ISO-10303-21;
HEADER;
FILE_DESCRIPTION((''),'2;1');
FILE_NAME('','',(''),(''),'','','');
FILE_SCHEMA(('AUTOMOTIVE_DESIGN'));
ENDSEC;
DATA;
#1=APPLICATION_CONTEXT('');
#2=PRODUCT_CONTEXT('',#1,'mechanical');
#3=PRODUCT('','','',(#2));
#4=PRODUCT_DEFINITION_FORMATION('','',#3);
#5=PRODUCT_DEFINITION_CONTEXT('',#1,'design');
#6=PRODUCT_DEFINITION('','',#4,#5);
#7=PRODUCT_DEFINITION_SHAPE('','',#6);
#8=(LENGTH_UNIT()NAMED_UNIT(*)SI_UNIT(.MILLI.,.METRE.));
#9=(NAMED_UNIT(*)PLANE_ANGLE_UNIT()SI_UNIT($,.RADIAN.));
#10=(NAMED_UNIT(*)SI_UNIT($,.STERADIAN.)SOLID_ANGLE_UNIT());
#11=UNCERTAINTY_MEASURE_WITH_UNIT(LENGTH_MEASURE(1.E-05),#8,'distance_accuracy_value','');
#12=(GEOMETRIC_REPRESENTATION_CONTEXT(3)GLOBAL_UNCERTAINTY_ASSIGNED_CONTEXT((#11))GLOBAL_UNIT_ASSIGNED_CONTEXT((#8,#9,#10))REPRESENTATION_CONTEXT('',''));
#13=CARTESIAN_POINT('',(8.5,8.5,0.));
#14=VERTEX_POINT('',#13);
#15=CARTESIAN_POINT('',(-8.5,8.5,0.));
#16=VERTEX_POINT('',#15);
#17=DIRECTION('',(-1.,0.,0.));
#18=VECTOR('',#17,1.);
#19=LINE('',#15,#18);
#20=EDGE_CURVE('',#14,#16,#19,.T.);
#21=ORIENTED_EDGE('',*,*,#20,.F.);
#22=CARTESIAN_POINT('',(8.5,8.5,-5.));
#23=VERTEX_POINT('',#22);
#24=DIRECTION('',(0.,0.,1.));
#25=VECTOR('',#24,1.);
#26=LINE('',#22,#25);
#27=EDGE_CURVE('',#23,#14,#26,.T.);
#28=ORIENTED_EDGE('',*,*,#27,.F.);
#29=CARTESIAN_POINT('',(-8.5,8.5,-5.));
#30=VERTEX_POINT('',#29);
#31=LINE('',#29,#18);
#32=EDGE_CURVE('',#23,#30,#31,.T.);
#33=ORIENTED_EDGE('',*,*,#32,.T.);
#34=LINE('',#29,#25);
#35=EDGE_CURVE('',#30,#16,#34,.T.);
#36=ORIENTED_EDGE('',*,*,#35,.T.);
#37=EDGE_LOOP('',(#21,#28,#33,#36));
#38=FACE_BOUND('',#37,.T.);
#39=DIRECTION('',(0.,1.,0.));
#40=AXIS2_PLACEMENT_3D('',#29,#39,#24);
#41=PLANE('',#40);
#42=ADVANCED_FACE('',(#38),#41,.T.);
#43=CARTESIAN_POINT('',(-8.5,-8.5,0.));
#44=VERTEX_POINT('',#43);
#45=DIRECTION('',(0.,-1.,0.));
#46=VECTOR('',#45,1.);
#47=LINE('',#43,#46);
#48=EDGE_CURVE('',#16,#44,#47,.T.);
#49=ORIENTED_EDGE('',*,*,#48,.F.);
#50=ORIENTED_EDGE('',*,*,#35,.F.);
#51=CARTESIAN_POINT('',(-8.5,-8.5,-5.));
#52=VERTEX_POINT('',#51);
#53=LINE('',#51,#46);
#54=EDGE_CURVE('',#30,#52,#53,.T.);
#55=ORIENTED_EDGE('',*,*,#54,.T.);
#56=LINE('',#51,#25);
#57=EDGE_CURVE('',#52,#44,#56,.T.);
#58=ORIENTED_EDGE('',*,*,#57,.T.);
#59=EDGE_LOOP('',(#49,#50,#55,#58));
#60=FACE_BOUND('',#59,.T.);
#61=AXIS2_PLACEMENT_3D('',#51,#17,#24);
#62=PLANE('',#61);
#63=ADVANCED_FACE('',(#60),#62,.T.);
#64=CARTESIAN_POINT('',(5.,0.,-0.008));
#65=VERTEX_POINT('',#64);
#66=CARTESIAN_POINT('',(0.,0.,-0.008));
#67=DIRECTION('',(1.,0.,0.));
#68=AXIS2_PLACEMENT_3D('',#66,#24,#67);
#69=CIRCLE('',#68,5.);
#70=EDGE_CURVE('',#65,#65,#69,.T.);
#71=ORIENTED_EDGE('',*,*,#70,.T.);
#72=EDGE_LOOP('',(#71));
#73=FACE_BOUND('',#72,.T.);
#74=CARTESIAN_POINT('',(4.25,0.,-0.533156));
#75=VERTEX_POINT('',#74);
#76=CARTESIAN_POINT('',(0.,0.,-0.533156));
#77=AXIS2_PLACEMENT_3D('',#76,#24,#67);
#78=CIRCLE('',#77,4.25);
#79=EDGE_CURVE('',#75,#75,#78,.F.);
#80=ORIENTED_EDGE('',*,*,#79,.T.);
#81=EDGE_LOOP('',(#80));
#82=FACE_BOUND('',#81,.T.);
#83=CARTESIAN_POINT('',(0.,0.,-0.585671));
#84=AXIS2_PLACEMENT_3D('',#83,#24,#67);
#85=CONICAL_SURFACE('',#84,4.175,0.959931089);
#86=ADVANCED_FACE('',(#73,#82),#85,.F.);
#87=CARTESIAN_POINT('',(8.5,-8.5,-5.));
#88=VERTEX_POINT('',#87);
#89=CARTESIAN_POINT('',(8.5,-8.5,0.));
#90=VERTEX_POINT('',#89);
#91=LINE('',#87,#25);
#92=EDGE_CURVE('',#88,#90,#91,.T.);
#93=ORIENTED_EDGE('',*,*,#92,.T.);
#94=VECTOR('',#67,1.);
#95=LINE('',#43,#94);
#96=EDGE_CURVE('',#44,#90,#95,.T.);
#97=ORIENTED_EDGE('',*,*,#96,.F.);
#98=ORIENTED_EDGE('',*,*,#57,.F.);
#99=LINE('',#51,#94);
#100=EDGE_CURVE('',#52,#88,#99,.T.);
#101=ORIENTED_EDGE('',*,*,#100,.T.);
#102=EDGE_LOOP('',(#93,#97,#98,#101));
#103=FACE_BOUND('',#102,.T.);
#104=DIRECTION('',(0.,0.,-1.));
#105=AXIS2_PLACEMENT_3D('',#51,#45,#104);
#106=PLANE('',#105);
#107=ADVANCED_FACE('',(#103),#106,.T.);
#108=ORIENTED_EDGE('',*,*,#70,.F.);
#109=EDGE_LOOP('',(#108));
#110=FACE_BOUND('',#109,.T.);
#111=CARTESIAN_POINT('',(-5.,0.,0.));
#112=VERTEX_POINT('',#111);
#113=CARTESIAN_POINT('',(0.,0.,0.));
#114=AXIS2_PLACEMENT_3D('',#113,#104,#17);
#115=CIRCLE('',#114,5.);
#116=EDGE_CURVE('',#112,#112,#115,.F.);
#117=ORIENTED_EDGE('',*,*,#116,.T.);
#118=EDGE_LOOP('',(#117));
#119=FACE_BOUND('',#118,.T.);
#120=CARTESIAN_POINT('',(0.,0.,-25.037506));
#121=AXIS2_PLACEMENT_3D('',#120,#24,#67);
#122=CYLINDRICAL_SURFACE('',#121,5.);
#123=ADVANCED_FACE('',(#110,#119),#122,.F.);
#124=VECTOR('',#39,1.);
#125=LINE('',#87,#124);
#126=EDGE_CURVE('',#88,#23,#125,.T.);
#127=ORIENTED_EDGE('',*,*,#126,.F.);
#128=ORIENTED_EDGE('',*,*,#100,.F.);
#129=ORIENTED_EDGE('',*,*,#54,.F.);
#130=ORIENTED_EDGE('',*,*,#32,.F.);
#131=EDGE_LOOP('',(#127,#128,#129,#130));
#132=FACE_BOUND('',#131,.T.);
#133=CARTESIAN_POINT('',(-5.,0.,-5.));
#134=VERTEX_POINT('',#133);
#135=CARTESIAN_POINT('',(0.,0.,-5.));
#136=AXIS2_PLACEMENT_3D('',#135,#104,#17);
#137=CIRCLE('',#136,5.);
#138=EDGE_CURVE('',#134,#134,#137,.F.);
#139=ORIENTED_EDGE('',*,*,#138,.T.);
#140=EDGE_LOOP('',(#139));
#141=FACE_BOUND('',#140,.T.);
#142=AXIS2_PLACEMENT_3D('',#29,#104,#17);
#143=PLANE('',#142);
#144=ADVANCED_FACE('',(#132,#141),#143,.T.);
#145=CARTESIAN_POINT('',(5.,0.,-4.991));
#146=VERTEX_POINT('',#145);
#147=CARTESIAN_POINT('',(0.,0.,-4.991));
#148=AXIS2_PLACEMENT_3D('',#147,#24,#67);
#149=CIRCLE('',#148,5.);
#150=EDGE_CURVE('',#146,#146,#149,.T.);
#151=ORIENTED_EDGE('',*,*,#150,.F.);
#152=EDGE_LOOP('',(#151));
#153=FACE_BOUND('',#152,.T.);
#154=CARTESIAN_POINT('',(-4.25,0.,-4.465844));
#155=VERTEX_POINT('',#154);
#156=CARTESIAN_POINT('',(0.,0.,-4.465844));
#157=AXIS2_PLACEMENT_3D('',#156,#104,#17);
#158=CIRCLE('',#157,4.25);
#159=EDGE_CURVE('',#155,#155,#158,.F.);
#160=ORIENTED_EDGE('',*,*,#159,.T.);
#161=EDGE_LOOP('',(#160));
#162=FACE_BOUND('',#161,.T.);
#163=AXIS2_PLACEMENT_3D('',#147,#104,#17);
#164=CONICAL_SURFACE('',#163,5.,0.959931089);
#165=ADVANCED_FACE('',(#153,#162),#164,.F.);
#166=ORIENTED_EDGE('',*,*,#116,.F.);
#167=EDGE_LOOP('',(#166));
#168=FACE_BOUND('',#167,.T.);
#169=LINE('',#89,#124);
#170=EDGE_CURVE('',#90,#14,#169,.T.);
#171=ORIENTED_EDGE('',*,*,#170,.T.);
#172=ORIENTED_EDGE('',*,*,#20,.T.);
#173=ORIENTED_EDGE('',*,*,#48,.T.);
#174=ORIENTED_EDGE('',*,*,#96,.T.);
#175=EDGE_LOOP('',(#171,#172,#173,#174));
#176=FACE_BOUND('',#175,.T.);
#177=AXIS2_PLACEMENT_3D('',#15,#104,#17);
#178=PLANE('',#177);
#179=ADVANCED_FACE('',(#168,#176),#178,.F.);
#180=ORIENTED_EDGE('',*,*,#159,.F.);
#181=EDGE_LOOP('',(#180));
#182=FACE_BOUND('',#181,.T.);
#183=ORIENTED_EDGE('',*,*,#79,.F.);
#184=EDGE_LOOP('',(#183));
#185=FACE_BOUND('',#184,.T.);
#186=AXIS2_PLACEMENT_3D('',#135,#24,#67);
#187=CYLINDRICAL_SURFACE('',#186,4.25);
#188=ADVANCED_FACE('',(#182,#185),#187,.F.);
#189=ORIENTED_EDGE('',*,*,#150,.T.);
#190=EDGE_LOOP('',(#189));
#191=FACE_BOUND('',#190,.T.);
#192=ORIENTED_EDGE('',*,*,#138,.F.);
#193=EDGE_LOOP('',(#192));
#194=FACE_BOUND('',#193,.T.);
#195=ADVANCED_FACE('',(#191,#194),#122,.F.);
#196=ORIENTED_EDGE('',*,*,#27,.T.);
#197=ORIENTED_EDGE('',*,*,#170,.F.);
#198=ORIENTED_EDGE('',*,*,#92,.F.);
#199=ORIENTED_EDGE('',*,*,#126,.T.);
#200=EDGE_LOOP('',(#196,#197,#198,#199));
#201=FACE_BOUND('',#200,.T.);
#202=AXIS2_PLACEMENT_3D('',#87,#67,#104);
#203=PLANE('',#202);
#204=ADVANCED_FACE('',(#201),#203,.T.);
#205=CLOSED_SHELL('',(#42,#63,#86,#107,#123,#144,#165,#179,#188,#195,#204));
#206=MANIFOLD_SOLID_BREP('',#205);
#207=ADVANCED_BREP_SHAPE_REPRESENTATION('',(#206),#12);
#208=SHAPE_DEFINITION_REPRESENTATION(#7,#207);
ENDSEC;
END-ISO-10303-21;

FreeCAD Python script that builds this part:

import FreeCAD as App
import Part
import Sketcher
from FreeCAD import Vector
Q = App.Units.Quantity


def add_polygon(sketch, points):
    """Adds a closed chain of lines whose ends are joined by coincident constraints."""
    first, n = sketch.GeometryCount, len(points)
    for a, b in zip(points, points[1:] + points[:1]):
        sketch.addGeometry(Part.LineSegment(App.Vector(*a, 0), App.Vector(*b, 0)), False)
    for i in range(n):
        sketch.addConstraint(Sketcher.Constraint("Coincident", first + i, 2, first + (i + 1) % n, 1))

doc = App.newDocument("Part")
body = doc.addObject("PartDesign::Body", "Body")

sketch1 = body.newObject("Sketcher::SketchObject", "Sketch")
sketch1.AttachmentSupport = (doc.getObject("XY_Plane"), [""])
sketch1.MapMode = "FlatFace"
sketch1.AttachmentOffset = App.Placement(Vector(0, 0, -5), App.Rotation())
add_polygon(sketch1, [(-8.5, 8.5), (-8.5, -8.5), (8.5, -8.5), (8.5, 8.5)])
sketch1.addGeometry(Part.Circle(Vector(0, 0, 0), Vector(0, 0, 1), 4.25), False)
sketch1.addConstraint([
    Sketcher.Constraint("Vertical", 0),
    Sketcher.Constraint("Horizontal", 1),
    Sketcher.Constraint("Vertical", 2),
    Sketcher.Constraint("Horizontal", 3),
    Sketcher.Constraint("Coincident", 4, 3, -1, 1),
    Sketcher.Constraint("Symmetric", 0, 2, 2, 2, -1, 1),
    Sketcher.Constraint("Equal", 3, 0),
    Sketcher.Constraint("Diameter", 4, 8.5),
    Sketcher.Constraint("DistanceX", 1, 1, 1, 2, 17.0),
])
pad1 = body.newObject("PartDesign::Pad", "Pad")
pad1.Profile = sketch1
pad1.Length = 5

sketch2 = body.newObject("Sketcher::SketchObject", "Sketch001")
sketch2.AttachmentSupport = (doc.getObject("YZ_Plane"), [""])
sketch2.MapMode = "FlatFace"
add_polygon(sketch2, [(5, -4.991), (4.175, -4.413329), (4.175, -5.001), (5, -5.001)])
add_polygon(sketch2, [(5, -0.008), (5, 0.002), (4.175, 0.002), (4.175, -0.585671)])
sketch2.addConstraint([
    Sketcher.Constraint("Vertical", 1),
    Sketcher.Constraint("Horizontal", 2),
    Sketcher.Constraint("Vertical", 3),
    Sketcher.Constraint("Vertical", 4),
    Sketcher.Constraint("Horizontal", 5),
    Sketcher.Constraint("Vertical", 6),
    Sketcher.Constraint("Vertical", 3, 2, 4, 2),
    Sketcher.Constraint("Vertical", 1, 2, 5, 2),
    Sketcher.Constraint("Equal", 3, 4),
    Sketcher.Constraint("Equal", 1, 6),
    Sketcher.Constraint("Angle", 0, Q("145 deg")),
    Sketcher.Constraint("DistanceX", -1, 1, 2, 2, 5.0),
    Sketcher.Constraint("DistanceY", 3, 1, 3, 2, 0.01),
    Sketcher.Constraint("DistanceX", 2, 1, 2, 2, 0.825),
    Sketcher.Constraint("DistanceY", 1, 2, -1, 1, 5.001),
    Sketcher.Constraint("DistanceY", -1, 1, 4, 2, 0.002),
])
groove = body.newObject("PartDesign::Groove", "Groove")
groove.Profile = sketch2
groove.ReferenceAxis = (sketch2, ["V_Axis"])
groove.Angle = 360

doc.recompute()
